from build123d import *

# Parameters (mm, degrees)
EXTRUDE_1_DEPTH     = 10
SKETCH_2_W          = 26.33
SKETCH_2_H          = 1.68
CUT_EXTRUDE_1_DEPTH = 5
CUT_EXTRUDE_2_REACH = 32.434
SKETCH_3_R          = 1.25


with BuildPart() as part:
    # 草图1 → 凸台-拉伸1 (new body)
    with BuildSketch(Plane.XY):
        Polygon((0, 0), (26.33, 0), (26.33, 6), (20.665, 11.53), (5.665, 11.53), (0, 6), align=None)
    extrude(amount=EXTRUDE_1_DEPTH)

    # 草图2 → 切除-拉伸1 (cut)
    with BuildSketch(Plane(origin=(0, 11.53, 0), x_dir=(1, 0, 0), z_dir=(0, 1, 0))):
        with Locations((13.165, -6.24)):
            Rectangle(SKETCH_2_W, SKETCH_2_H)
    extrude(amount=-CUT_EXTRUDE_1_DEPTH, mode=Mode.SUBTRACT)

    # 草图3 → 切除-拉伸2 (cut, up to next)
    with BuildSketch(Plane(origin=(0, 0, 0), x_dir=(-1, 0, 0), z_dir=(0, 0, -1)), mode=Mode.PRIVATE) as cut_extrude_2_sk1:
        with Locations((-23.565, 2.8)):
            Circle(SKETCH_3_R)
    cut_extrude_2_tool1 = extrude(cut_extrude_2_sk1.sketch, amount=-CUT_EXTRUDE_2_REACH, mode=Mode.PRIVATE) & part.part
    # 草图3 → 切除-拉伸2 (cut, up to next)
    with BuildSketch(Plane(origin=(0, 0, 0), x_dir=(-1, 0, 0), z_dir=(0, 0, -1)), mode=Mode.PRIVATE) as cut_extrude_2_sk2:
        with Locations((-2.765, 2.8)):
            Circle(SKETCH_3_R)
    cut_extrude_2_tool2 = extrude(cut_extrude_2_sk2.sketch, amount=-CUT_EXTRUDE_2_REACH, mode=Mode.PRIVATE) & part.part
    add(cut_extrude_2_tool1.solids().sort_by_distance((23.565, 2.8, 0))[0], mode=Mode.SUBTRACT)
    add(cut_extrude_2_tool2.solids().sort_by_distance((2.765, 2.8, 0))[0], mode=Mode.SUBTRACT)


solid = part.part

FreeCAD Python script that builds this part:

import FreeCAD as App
import Part
import Sketcher
Q = App.Units.Quantity

doc = App.newDocument("Part")
params = doc.addObject("Spreadsheet::Sheet", "Params")
for row, (alias, value) in enumerate([
    ("sketch1_width", "15 mm"),
    ("sketch1_height", "6 mm"),
    ("sketch1_width2", "26.33 mm"),
    ("pad1_length", "10 mm"),
    ("sketch2_width", "26.33 mm"),
    ("sketch2_height", "1.68 mm"),
    ("pocket1_length", "5 mm"),
    ("sketch3_diameter", "2.5 mm"),
    ("sketch4_diameter", "2.5 mm"),
], start=1):
    params.set(f"A{row}", alias)
    params.set(f"B{row}", "=" + value)
    params.setAlias(f"B{row}", alias)

body = doc.addObject("PartDesign::Body", "Body")

# Sketch on XY plane
sketch1 = doc.addObject("Sketcher::SketchObject", "Sketch")
body.addObject(sketch1)
sketch1.AttachmentSupport = (doc.XY_Plane, [""])
sketch1.MapMode = "FlatFace"
sketch1.addGeometry([
    Part.LineSegment(App.Vector(0, 0, 0), App.Vector(26, 0, 0)),  # 0
    Part.LineSegment(App.Vector(26, 0, 0), App.Vector(26, 6, 0)),  # 1
    Part.LineSegment(App.Vector(26, 6, 0), App.Vector(21, 12, 0)),  # 2
    Part.LineSegment(App.Vector(21, 12, 0), App.Vector(6, 12, 0)),  # 3
    Part.LineSegment(App.Vector(6, 12, 0), App.Vector(0, 6, 0)),  # 4
    Part.LineSegment(App.Vector(0, 6, 0), App.Vector(0, 0, 0)),  # 5
], False)
sketch1.addConstraint([
    Sketcher.Constraint("Coincident", 0, 2, 1, 1),
    Sketcher.Constraint("Coincident", 1, 2, 2, 1),
    Sketcher.Constraint("Coincident", 2, 2, 3, 1),
    Sketcher.Constraint("Coincident", 3, 2, 4, 1),
    Sketcher.Constraint("Coincident", 4, 2, 5, 1),
    Sketcher.Constraint("Coincident", 5, 2, 0, 1),
    Sketcher.Constraint("Horizontal", 0),
    Sketcher.Constraint("Vertical", 1),
    Sketcher.Constraint("Horizontal", 3),
    Sketcher.Constraint("Vertical", 5),
    Sketcher.Constraint("Coincident", 5, 2, -1, 1),
    Sketcher.Constraint("Horizontal", 1, 2, 4, 2),
    Sketcher.Constraint("Equal", 2, 4),
    Sketcher.Constraint("DistanceX", 3, 2, 3, 1, Q("15 mm")),
    Sketcher.Constraint("DistanceY", 1, 1, 1, 2, Q("6 mm")),
    Sketcher.Constraint("DistanceX", 0, 1, 0, 2, Q("26.33 mm")),
    Sketcher.Constraint("DistanceY", -1, 1, 2, 2, Q("11.53 mm")),
])
sketch1.setExpression("Constraints[13]", "Params.sketch1_width")
sketch1.setExpression("Constraints[14]", "Params.sketch1_height")
sketch1.setExpression("Constraints[15]", "Params.sketch1_width2")
pad1 = doc.addObject("PartDesign::Pad", "Pad")
body.addObject(pad1)
pad1.Profile = sketch1
pad1.setExpression("Length", "Params.pad1_length")

# Sketch on XZ plane
sketch2 = doc.addObject("Sketcher::SketchObject", "Sketch001")
body.addObject(sketch2)
sketch2.AttachmentSupport = (doc.XZ_Plane, [""])
sketch2.MapMode = "FlatFace"
sketch2.AttachmentOffset = App.Placement(App.Vector(0, 0, -11.53), App.Rotation())
sketch2.addGeometry([
    Part.LineSegment(App.Vector(0, 5.4, 0), App.Vector(0, 7.1, 0)),
    Part.LineSegment(App.Vector(0, 7.1, 0), App.Vector(26.3, 7.1, 0)),
    Part.LineSegment(App.Vector(26.3, 7.1, 0), App.Vector(26.3, 5.4, 0)),
    Part.LineSegment(App.Vector(26.3, 5.4, 0), App.Vector(0, 5.4, 0)),
], False)
sketch2.addConstraint([
    Sketcher.Constraint("Coincident", 0, 2, 1, 1),
    Sketcher.Constraint("Coincident", 1, 2, 2, 1),
    Sketcher.Constraint("Coincident", 2, 2, 3, 1),
    Sketcher.Constraint("Coincident", 3, 2, 0, 1),
    Sketcher.Constraint("Vertical", 0),
    Sketcher.Constraint("Horizontal", 1),
    Sketcher.Constraint("Vertical", 2),
    Sketcher.Constraint("Horizontal", 3),
    Sketcher.Constraint("PointOnObject", 0, 2, -2),
    Sketcher.Constraint("DistanceX", 1, 1, 1, 2, Q("26.33 mm")),
    Sketcher.Constraint("DistanceY", 0, 1, 0, 2, Q("1.68 mm")),
    Sketcher.Constraint("DistanceY", -1, 1, 2, 2, Q("5.4 mm")),
])
sketch2.setExpression("Constraints[9]", "Params.sketch2_width")
sketch2.setExpression("Constraints[10]", "Params.sketch2_height")
pocket1 = doc.addObject("PartDesign::Pocket", "Pocket")
body.addObject(pocket1)
pocket1.Profile = sketch2
pocket1.setExpression("Length", "Params.pocket1_length")
pocket1.Reversed = True

# Sketch on XY plane
sketch3 = doc.addObject("Sketcher::SketchObject", "Sketch002")
body.addObject(sketch3)
sketch3.AttachmentSupport = (doc.XY_Plane, [""])
sketch3.MapMode = "FlatFace"
sketch3.addGeometry(Part.Circle(App.Vector(23.6, 2.8, 0), App.Vector(0, 0, 1), 1.2), False)
sketch3.addConstraint([
    Sketcher.Constraint("Diameter", 0, Q("2.5 mm")),
    Sketcher.Constraint("DistanceY", -1, 1, 0, 3, Q("2.8 mm")),
    Sketcher.Constraint("DistanceX", -1, 1, 0, 3, Q("23.565 mm")),
])
sketch3.setExpression("Constraints[0]", "Params.sketch3_diameter")
pocket2 = doc.addObject("PartDesign::Pocket", "Pocket001")
body.addObject(pocket2)
pocket2.Profile = sketch3
pocket2.Type = "UpToFirst"
pocket2.Reversed = True

# Sketch on XY plane
sketch4 = doc.addObject("Sketcher::SketchObject", "Sketch003")
body.addObject(sketch4)
sketch4.AttachmentSupport = (doc.XY_Plane, [""])
sketch4.MapMode = "FlatFace"
sketch4.addGeometry(Part.Circle(App.Vector(2.8, 2.8, 0), App.Vector(0, 0, 1), 1.2), False)
sketch4.addConstraint([
    Sketcher.Constraint("Diameter", 0, Q("2.5 mm")),
    Sketcher.Constraint("DistanceY", -1, 1, 0, 3, Q("2.8 mm")),
    Sketcher.Constraint("DistanceX", -1, 1, 0, 3, Q("2.765 mm")),
])
sketch4.setExpression("Constraints[0]", "Params.sketch4_diameter")
pocket3 = doc.addObject("PartDesign::Pocket", "Pocket002")
body.addObject(pocket3)
pocket3.Profile = sketch4
pocket3.Type = "UpToFirst"
pocket3.Reversed = True

doc.recompute()
